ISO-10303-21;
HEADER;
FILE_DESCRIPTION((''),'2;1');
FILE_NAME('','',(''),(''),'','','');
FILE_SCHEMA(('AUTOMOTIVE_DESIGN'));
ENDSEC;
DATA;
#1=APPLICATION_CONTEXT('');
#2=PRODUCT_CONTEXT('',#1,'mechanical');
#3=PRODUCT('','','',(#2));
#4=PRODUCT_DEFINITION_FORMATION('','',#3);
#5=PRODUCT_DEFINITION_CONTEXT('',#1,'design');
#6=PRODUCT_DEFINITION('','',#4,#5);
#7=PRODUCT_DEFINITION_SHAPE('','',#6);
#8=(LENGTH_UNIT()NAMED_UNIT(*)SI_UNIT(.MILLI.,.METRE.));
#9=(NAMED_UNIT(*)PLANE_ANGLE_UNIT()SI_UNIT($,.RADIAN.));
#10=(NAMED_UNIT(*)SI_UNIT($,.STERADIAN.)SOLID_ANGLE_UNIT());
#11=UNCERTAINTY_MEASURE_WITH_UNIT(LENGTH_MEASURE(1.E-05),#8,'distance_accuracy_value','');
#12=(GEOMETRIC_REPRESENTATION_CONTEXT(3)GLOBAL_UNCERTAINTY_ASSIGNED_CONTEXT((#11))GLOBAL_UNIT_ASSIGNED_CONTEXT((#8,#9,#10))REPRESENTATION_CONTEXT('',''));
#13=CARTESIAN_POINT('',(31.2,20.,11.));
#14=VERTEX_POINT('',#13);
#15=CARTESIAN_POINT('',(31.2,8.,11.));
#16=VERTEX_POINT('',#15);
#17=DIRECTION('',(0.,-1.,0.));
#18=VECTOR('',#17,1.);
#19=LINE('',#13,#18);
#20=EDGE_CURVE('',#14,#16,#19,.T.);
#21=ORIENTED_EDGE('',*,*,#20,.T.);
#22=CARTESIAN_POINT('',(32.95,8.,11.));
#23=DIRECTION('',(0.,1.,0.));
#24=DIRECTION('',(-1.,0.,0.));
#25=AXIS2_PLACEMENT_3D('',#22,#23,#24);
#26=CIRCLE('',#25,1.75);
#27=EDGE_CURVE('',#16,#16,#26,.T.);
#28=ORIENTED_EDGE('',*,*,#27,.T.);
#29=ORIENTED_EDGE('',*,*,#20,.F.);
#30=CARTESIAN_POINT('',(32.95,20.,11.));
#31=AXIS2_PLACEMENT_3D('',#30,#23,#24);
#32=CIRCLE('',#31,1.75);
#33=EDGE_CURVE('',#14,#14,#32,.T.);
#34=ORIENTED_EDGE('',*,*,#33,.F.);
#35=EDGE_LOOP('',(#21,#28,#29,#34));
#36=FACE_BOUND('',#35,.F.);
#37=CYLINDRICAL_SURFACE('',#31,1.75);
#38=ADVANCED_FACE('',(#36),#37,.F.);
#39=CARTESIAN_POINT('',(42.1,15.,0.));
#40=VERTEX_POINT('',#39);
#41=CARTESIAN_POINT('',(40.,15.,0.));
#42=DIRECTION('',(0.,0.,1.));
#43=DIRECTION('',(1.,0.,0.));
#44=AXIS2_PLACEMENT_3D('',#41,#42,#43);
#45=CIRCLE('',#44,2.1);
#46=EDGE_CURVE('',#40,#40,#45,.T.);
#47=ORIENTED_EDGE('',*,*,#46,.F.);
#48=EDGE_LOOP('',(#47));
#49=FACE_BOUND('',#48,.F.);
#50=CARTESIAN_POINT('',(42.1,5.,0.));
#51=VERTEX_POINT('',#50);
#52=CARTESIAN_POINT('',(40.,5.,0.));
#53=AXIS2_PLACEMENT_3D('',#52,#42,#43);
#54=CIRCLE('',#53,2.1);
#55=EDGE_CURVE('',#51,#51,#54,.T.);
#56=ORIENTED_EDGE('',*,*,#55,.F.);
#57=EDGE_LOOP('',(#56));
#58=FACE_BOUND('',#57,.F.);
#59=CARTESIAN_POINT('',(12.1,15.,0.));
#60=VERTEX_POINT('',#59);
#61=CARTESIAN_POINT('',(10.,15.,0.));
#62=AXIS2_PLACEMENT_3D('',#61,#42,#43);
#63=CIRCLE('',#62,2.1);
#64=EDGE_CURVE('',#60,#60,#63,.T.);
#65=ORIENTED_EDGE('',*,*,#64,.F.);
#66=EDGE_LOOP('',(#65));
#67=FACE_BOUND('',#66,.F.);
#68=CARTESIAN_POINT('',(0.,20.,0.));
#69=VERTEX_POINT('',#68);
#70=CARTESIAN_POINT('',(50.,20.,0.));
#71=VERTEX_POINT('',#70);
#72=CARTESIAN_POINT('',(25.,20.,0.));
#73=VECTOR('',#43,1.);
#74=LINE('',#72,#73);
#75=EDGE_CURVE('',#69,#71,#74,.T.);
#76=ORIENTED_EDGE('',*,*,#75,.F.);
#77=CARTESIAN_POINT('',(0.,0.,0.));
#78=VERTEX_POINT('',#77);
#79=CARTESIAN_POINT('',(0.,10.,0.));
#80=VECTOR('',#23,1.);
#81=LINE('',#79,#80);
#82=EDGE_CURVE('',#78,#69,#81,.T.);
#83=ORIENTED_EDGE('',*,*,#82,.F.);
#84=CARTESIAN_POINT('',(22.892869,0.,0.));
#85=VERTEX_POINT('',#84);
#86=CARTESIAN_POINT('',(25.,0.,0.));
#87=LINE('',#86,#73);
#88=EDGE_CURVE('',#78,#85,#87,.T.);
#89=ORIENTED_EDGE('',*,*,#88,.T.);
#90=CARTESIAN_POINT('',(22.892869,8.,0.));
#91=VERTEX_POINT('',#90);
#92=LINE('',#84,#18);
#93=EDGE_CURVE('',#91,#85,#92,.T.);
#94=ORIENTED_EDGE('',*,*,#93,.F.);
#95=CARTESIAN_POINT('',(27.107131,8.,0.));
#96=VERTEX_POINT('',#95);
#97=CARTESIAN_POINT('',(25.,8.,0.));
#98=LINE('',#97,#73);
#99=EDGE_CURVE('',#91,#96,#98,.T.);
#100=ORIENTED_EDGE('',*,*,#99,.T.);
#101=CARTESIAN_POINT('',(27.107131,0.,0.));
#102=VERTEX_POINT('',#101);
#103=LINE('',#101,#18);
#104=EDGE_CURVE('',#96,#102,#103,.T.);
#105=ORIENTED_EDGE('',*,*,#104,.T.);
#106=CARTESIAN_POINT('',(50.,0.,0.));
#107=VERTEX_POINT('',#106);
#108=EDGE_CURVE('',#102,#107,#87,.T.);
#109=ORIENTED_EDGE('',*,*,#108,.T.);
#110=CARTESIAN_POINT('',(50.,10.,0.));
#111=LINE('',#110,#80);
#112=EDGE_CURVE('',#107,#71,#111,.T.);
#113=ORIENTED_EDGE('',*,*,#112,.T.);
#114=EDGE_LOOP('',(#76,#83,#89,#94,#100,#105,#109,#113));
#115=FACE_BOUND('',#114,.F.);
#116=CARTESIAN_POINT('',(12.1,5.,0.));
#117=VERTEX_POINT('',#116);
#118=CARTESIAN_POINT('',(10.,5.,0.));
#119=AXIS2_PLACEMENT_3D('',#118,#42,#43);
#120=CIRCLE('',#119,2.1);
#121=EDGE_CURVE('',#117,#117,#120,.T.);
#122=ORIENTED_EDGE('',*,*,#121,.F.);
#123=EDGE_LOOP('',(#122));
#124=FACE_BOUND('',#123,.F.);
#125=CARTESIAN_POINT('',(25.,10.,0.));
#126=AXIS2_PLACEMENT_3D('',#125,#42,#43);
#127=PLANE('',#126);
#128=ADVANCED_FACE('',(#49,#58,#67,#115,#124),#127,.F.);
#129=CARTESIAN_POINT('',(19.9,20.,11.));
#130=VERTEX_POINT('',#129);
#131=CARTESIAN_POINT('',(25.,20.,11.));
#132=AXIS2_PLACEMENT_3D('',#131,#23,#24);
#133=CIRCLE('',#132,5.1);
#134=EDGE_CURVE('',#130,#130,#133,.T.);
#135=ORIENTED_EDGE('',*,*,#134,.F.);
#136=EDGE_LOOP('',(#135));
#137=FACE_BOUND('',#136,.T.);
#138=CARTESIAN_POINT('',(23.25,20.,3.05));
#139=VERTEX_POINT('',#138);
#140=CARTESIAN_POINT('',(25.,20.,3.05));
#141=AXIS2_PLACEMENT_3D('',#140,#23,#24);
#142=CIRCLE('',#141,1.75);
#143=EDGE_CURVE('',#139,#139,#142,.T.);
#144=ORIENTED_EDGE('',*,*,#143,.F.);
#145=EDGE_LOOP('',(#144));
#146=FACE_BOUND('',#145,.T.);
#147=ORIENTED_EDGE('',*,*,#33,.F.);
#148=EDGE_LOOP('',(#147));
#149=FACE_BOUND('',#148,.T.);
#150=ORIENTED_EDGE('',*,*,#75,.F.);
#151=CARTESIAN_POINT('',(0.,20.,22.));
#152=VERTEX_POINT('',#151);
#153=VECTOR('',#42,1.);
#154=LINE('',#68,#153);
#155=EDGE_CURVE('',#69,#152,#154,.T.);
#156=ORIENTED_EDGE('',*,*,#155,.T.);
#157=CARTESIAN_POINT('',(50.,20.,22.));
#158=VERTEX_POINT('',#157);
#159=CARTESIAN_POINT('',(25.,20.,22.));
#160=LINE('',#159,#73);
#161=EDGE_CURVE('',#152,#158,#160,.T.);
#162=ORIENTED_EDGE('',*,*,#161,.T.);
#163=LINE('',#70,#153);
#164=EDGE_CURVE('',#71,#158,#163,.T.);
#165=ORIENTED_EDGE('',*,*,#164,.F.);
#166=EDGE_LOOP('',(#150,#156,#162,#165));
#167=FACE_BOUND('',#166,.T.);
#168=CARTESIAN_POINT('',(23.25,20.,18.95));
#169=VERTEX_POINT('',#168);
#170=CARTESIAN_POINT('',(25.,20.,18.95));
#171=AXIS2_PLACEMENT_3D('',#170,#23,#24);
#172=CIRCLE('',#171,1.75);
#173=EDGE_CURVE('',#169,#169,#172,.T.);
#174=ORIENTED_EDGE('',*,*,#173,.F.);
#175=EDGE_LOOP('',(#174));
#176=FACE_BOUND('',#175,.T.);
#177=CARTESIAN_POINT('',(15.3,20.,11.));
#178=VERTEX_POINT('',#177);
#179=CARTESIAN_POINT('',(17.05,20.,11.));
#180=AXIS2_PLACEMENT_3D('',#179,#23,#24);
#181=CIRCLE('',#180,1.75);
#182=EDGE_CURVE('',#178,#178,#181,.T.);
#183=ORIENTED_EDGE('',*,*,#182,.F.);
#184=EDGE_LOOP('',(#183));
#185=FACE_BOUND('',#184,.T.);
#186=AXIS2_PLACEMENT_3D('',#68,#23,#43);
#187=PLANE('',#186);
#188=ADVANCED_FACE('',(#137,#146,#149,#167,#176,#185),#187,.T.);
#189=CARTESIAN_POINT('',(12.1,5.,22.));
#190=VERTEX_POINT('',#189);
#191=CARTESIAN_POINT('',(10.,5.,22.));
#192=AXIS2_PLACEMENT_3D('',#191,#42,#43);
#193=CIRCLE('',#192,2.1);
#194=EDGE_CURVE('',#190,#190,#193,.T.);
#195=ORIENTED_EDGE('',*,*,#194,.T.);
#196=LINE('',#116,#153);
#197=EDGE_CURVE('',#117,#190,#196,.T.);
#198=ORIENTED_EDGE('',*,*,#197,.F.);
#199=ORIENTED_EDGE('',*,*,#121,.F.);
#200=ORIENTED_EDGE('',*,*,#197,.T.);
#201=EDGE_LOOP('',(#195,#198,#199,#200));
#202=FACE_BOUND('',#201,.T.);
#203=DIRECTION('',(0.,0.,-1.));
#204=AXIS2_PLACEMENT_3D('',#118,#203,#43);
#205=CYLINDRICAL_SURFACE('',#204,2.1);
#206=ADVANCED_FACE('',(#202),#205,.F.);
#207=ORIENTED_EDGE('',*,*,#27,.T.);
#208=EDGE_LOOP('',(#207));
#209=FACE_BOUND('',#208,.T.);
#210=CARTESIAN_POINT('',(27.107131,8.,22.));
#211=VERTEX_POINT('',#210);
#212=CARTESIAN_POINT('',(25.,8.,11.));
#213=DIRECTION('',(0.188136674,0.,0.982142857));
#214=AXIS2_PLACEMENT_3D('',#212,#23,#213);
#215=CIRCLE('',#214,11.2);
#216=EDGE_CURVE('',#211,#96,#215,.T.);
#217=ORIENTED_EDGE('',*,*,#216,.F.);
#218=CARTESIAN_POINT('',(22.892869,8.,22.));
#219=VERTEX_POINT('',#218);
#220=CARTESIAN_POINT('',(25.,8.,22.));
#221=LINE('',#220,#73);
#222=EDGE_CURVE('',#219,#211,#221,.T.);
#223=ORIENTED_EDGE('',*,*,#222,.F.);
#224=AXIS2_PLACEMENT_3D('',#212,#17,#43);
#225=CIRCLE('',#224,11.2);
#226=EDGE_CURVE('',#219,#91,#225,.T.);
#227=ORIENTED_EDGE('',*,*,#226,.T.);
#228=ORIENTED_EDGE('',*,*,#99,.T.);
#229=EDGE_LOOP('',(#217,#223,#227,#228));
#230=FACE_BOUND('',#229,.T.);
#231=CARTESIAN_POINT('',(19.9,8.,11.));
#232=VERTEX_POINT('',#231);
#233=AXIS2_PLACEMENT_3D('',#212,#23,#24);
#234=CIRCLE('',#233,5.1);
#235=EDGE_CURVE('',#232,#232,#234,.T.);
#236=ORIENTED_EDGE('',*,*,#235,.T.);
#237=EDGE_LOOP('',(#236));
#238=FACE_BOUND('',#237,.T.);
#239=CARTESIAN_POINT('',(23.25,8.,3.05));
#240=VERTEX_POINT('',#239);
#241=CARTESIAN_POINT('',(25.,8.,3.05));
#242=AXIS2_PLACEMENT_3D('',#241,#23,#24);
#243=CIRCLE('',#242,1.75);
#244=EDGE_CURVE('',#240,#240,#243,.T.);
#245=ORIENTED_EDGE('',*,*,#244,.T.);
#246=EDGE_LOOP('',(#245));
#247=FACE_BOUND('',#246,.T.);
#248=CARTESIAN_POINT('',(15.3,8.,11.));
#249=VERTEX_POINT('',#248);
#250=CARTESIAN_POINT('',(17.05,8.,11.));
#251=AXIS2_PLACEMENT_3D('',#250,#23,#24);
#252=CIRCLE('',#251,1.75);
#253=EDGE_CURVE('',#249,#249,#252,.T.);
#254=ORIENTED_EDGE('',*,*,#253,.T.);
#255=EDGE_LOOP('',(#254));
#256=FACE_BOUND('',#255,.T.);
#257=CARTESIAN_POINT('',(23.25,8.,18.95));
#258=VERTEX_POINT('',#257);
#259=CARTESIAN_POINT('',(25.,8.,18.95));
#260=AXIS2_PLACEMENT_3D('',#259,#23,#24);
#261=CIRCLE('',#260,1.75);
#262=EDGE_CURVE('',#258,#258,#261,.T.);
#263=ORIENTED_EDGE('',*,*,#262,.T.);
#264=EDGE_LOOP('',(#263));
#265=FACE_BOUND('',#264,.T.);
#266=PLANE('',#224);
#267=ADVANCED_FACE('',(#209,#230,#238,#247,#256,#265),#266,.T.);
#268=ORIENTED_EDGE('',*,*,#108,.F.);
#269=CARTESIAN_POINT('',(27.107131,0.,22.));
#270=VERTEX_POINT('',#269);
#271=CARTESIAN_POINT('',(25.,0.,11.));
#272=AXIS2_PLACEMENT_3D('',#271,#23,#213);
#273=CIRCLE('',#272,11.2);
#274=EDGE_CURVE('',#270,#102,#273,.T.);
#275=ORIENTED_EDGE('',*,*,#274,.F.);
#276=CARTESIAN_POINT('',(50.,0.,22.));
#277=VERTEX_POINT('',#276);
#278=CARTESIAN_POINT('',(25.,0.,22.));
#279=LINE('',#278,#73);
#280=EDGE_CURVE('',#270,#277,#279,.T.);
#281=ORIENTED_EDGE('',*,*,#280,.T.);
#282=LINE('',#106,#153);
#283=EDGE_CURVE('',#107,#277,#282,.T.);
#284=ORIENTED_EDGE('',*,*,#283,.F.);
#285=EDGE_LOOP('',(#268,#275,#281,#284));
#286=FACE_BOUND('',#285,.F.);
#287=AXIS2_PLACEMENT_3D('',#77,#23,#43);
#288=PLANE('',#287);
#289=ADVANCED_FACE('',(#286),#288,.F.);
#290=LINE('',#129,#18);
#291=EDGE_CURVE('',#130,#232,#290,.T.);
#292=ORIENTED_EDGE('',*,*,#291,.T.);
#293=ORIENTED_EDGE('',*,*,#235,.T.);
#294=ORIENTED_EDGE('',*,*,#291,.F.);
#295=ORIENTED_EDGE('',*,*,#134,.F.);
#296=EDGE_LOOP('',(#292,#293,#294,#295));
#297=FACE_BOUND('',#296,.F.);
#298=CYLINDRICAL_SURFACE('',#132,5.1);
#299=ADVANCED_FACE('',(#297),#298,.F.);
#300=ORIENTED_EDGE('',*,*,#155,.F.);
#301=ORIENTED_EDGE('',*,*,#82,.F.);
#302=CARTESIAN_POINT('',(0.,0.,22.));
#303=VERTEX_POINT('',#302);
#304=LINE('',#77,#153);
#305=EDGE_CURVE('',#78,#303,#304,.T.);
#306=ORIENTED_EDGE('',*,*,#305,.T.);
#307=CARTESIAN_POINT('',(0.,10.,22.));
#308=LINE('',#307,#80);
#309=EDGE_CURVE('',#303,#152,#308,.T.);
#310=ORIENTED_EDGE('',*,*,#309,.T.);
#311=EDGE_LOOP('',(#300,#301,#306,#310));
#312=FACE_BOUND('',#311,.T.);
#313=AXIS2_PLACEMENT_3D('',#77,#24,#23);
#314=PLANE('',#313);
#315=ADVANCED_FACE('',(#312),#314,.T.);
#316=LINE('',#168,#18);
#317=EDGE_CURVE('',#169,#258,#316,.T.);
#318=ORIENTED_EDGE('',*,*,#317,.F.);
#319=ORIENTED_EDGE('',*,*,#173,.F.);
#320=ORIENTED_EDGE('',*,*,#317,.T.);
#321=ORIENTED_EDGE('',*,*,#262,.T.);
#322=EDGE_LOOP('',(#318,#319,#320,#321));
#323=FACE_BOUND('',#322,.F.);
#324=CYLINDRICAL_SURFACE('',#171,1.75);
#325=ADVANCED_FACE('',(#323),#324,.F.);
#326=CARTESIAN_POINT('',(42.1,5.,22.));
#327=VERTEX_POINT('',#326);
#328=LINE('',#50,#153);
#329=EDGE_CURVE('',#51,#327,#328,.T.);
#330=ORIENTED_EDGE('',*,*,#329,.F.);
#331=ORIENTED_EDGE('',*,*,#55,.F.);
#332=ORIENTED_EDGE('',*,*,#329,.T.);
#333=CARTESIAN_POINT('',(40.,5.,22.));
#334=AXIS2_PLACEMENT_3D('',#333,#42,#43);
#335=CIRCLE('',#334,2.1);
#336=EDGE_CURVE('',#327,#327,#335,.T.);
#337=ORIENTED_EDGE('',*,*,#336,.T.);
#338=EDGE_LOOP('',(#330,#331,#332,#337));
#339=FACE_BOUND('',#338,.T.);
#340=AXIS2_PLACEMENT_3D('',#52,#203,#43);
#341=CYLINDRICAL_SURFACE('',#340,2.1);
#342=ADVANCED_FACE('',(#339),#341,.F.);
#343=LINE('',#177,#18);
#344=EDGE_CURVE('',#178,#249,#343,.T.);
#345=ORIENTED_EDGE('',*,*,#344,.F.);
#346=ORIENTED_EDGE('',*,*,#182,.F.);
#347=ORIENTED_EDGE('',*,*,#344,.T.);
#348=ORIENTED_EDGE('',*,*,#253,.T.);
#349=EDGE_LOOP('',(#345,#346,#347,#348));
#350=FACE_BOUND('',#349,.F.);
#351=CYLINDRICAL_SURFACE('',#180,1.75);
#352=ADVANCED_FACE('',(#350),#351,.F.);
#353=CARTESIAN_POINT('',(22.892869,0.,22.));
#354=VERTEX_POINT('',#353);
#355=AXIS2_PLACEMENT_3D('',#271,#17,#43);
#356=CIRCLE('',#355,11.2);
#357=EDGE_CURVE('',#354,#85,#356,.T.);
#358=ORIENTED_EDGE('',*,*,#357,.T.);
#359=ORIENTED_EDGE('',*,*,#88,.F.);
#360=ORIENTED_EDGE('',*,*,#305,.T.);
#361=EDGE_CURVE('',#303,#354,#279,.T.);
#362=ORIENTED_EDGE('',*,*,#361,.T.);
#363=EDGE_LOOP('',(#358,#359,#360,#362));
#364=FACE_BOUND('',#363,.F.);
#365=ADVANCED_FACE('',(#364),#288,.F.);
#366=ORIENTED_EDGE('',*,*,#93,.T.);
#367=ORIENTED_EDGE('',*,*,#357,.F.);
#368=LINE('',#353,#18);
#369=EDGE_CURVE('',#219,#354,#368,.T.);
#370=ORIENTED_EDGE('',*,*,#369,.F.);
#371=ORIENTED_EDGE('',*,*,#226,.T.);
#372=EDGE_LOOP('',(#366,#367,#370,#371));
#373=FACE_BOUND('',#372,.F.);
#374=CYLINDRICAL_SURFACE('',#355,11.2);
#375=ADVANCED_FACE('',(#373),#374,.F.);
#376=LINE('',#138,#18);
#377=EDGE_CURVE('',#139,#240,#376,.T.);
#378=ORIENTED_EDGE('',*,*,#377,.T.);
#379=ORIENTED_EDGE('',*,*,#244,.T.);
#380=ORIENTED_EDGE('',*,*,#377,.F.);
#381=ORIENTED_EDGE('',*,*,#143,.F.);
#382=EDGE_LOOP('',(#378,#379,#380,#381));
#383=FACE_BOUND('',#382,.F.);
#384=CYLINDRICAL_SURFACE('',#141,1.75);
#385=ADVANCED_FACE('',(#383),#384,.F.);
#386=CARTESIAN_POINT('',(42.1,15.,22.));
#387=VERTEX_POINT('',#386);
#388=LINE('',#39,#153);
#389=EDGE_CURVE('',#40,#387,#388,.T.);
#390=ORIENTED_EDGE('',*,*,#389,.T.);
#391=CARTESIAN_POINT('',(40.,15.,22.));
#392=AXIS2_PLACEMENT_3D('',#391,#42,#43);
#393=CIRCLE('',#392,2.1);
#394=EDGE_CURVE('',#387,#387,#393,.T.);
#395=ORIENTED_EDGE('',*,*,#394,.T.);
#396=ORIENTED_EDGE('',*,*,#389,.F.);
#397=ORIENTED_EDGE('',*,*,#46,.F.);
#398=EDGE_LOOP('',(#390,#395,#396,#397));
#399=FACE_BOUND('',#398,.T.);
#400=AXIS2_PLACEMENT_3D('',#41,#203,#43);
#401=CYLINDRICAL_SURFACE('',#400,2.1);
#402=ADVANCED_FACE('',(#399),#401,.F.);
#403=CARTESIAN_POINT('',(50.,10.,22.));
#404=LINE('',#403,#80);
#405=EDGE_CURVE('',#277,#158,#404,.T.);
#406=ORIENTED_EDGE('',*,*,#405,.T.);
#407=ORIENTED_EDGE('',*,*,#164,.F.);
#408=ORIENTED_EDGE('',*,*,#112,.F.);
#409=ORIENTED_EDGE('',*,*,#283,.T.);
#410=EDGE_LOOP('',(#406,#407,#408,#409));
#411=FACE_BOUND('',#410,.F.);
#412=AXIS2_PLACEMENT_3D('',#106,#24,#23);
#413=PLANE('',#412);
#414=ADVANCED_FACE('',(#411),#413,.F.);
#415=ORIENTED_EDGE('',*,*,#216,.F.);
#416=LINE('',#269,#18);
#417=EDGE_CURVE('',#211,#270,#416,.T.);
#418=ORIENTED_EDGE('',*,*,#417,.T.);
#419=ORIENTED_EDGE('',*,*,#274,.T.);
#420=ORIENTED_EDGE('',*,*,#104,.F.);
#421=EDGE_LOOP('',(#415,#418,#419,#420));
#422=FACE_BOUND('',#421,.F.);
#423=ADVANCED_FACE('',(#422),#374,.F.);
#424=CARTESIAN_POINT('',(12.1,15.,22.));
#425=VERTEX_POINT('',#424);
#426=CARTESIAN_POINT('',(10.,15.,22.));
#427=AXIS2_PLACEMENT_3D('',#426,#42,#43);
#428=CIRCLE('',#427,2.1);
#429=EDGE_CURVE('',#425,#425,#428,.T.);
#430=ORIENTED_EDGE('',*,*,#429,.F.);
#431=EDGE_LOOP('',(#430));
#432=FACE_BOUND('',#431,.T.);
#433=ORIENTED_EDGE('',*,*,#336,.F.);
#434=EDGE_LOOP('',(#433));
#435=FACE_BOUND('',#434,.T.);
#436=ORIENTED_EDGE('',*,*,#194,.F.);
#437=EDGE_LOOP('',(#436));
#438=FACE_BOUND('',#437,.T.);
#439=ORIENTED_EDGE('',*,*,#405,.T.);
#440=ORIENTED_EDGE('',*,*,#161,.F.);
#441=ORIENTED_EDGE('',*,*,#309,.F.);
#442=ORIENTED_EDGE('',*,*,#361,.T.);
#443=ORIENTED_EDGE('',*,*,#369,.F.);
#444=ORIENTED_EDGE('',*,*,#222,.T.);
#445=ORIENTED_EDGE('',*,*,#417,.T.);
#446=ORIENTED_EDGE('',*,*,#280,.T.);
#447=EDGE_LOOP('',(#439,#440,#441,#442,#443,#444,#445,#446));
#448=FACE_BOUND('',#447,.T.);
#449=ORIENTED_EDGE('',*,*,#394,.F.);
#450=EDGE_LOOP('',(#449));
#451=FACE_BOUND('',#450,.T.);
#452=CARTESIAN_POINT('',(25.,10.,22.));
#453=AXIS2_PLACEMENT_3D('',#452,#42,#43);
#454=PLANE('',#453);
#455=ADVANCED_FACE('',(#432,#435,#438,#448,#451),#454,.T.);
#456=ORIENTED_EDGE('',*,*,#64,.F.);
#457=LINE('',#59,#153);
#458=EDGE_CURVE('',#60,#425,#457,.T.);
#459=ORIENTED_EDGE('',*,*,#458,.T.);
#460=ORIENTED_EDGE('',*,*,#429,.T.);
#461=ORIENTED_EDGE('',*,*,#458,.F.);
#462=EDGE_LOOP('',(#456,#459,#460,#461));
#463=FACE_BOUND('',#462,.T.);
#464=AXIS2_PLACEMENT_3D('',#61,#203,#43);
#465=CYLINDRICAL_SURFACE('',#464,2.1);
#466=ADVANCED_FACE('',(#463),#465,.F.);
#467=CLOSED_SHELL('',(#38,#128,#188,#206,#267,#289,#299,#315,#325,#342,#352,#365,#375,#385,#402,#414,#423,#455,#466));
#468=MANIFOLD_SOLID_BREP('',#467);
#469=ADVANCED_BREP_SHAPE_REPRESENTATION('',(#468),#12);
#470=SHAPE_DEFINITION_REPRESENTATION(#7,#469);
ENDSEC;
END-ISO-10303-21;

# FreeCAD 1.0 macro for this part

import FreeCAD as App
import Part
import Sketcher


def add_polygon(sketch, points):
    """Adds a closed chain of lines whose ends are joined by coincident constraints."""
    first, n = sketch.GeometryCount, len(points)
    for a, b in zip(points, points[1:] + points[:1]):
        sketch.addGeometry(Part.LineSegment(App.Vector(*a, 0), App.Vector(*b, 0)), False)
    for i in range(n):
        sketch.addConstraint(Sketcher.Constraint("Coincident", first + i, 2, first + (i + 1) % n, 1))

doc = App.newDocument("Part")
body = doc.addObject("PartDesign::Body", "Body")

# Sketch on XY plane
sketch1 = doc.addObject("Sketcher::SketchObject", "Sketch")
body.addObject(sketch1)
sketch1.AttachmentSupport = (doc.XY_Plane, [""])
sketch1.MapMode = "FlatFace"
add_polygon(sketch1, [(0, 20), (0, 0), (50, 0), (50, 20)])  # lines 0-3
sketch1.addGeometry(Part.Circle(App.Vector(10, 5, 0), App.Vector(0, 0, 1), 2.1), False)  # 4
sketch1.addGeometry(Part.Circle(App.Vector(40, 5, 0), App.Vector(0, 0, 1), 2.1), False)  # 5
sketch1.addGeometry(Part.Circle(App.Vector(10, 15, 0), App.Vector(0, 0, 1), 2.1), False)  # 6
sketch1.addGeometry(Part.Circle(App.Vector(40, 15, 0), App.Vector(0, 0, 1), 2.1), False)  # 7
sketch1.addConstraint([
    Sketcher.Constraint("Vertical", 0),
    Sketcher.Constraint("Horizontal", 1),
    Sketcher.Constraint("Vertical", 2),
    Sketcher.Constraint("Horizontal", 3),
    Sketcher.Constraint("Coincident", 0, 2, -1, 1),
    Sketcher.Constraint("Equal", 4, 5),
    Sketcher.Constraint("Equal", 5, 6),
    Sketcher.Constraint("Equal", 6, 7),
    Sketcher.Constraint("Horizontal", 4, 3, 5, 3),
    Sketcher.Constraint("Horizontal", 6, 3, 7, 3),
    Sketcher.Constraint("Vertical", 4, 3, 6, 3),
    Sketcher.Constraint("Vertical", 5, 3, 7, 3),
    Sketcher.Constraint("Diameter", 4, 4.2),
    Sketcher.Constraint("DistanceX", 1, 1, 1, 2, 50.0),
    Sketcher.Constraint("DistanceY", 0, 2, 0, 1, 20.0),
    Sketcher.Constraint("DistanceX", -1, 1, 4, 3, 10.0),
    Sketcher.Constraint("DistanceY", -1, 1, 4, 3, 5.0),
    Sketcher.Constraint("DistanceX", -1, 1, 5, 3, 40.0),
    Sketcher.Constraint("DistanceY", -1, 1, 6, 3, 15.0),
])
pad1 = doc.addObject("PartDesign::Pad", "Pad")
body.addObject(pad1)
pad1.Profile = sketch1
pad1.Length = 22

# Sketch on XZ plane
sketch2 = doc.addObject("Sketcher::SketchObject", "Sketch001")
body.addObject(sketch2)
sketch2.AttachmentSupport = (doc.XZ_Plane, [""])
sketch2.MapMode = "FlatFace"
sketch2.addGeometry(Part.Circle(App.Vector(25, 11, 0), App.Vector(0, 0, 1), 11), False)
sketch2.addConstraint([
    Sketcher.Constraint("Diameter", 0, 22.4),
    Sketcher.Constraint("DistanceX", -1, 1, 0, 3, 25.0),
    Sketcher.Constraint("DistanceY", -1, 1, 0, 3, 11.0),
])
pocket1 = doc.addObject("PartDesign::Pocket", "Pocket")
body.addObject(pocket1)
pocket1.Profile = sketch2
pocket1.Length = 8

# Sketch on XZ plane
sketch3 = doc.addObject("Sketcher::SketchObject", "Sketch002")
body.addObject(sketch3)
sketch3.AttachmentSupport = (doc.XZ_Plane, [""])
sketch3.MapMode = "FlatFace"
sketch3.AttachmentOffset = App.Placement(App.Vector(0, 0, -20), App.Rotation())
sketch3.addGeometry([
    Part.Circle(App.Vector(25, 11, 0), App.Vector(0, 0, 1), 5.1),  # 0
    Part.Circle(App.Vector(25, 18.9, 0), App.Vector(0, 0, 1), 1.8),  # 1
    Part.Circle(App.Vector(25, 3, 0), App.Vector(0, 0, 1), 1.8),  # 2
    Part.Circle(App.Vector(33, 11, 0), App.Vector(0, 0, 1), 1.8),  # 3
    Part.Circle(App.Vector(17.1, 11, 0), App.Vector(0, 0, 1), 1.8),  # 4
], False)
sketch3.addConstraint([
    Sketcher.Constraint("Equal", 1, 2),
    Sketcher.Constraint("Equal", 2, 3),
    Sketcher.Constraint("Equal", 3, 4),
    Sketcher.Constraint("Horizontal", 0, 3, 3, 3),
    Sketcher.Constraint("Horizontal", 3, 3, 4, 3),
    Sketcher.Constraint("Vertical", 0, 3, 1, 3),
    Sketcher.Constraint("Vertical", 1, 3, 2, 3),
    Sketcher.Constraint("Diameter", 0, 10.2),
    Sketcher.Constraint("Diameter", 1, 3.5),
    Sketcher.Constraint("DistanceX", -1, 1, 0, 3, 25.0),
    Sketcher.Constraint("DistanceY", -1, 1, 0, 3, 11.0),
    Sketcher.Constraint("DistanceY", 2, 3, 1, 3, 15.9),
    Sketcher.Constraint("DistanceX", 4, 3, 3, 3, 15.9),
    Sketcher.Constraint("DistanceY", -1, 1, 1, 3, 18.95),
    Sketcher.Constraint("DistanceX", -1, 1, 3, 3, 32.95),
])
pocket2 = doc.addObject("PartDesign::Pocket", "Pocket001")
body.addObject(pocket2)
pocket2.Profile = sketch3
pocket2.Length = 20
pocket2.Reversed = True

doc.recompute()
